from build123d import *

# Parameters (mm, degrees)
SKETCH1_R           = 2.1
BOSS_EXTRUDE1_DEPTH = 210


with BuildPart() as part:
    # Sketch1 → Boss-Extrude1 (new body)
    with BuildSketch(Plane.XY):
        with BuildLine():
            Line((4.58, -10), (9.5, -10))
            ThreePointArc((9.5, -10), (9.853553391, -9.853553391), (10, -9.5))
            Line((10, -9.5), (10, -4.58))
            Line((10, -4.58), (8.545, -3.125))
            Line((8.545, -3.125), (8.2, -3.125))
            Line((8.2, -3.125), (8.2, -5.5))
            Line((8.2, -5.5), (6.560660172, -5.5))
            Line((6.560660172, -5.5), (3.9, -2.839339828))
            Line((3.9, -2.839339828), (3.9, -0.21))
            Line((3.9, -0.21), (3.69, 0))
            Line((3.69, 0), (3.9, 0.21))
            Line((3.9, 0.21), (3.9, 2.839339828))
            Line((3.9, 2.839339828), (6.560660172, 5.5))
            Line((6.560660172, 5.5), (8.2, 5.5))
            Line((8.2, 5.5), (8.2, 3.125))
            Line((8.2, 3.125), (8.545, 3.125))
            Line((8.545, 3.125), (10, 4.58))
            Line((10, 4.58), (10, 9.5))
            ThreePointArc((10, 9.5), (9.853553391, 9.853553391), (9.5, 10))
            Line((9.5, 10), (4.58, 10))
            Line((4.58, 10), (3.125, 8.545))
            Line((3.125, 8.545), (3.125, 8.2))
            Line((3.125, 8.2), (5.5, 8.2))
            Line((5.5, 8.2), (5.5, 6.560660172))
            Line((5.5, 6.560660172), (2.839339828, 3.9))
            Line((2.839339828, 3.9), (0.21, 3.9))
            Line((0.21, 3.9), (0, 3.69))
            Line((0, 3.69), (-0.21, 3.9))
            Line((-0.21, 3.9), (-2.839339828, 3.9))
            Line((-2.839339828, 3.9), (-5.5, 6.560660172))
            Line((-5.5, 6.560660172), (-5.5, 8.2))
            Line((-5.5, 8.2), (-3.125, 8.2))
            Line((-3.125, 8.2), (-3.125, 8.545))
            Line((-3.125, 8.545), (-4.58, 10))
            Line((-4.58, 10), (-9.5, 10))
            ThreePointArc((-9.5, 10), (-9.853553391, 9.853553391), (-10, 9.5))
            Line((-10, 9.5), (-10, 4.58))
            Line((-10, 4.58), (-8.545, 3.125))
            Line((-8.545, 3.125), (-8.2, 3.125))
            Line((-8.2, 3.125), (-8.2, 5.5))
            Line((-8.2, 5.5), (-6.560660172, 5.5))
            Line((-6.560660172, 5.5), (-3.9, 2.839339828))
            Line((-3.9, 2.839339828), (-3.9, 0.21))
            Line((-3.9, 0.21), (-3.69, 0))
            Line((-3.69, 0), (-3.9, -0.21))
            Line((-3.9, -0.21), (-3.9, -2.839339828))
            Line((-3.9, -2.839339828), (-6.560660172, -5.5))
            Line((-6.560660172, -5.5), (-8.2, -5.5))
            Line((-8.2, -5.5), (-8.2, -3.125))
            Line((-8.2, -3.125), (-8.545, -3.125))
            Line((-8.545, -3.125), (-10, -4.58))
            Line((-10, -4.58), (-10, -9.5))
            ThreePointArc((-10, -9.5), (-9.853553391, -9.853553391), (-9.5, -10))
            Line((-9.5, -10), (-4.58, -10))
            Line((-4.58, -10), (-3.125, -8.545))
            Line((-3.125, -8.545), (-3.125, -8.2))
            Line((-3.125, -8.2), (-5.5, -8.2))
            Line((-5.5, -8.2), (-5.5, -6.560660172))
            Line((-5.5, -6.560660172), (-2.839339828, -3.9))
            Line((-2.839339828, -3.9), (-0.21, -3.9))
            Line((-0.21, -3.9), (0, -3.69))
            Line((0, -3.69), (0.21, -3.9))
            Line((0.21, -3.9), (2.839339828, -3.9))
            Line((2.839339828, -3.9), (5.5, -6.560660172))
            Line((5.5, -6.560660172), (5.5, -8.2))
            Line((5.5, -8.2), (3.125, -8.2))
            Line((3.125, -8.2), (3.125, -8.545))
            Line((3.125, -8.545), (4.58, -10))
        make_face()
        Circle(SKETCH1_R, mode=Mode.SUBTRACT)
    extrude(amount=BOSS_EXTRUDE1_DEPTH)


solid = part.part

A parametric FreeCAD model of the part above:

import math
import FreeCAD as App
import Part
import Sketcher
from FreeCAD import Vector
Q = App.Units.Quantity

doc = App.newDocument("Part")
params = doc.addObject("Spreadsheet::Sheet", "Params")
for row, (alias, value) in enumerate([
    ("sketch1_diameter", "4.2 mm"),
    ("sketch1_radius", "0.5 mm"),
    ("sketch1_width", "4.92 mm"),
    ("pad1_length", "210 mm"),
], start=1):
    params.set(f"A{row}", alias)
    params.set(f"B{row}", "=" + value)
    params.setAlias(f"B{row}", alias)

body = doc.addObject("PartDesign::Body", "Body")

# Sketch on XY plane
sketch1 = doc.addObject("Sketcher::SketchObject", "Sketch")
body.addObject(sketch1)
sketch1.AttachmentSupport = (doc.XY_Plane, [""])
sketch1.MapMode = "FlatFace"
sketch1.addGeometry(Part.LineSegment(Vector(4.58, -10, 0), Vector(9.5, -10, 0)), False)
sketch1.addGeometry(Part.ArcOfCircle(Part.Circle(Vector(9.5, -9.5, 0), Vector(0, 0, 1), 0.5), math.radians(-90), math.radians(0)), False)
sketch1.addGeometry(Part.LineSegment(Vector(10, -9.5, 0), Vector(10, -4.58, 0)), False)
sketch1.addGeometry(Part.LineSegment(Vector(10, -4.58, 0), Vector(8.54, -3.12, 0)), False)
sketch1.addGeometry(Part.LineSegment(Vector(8.54, -3.12, 0), Vector(8.2, -3.12, 0)), False)
sketch1.addGeometry(Part.LineSegment(Vector(8.2, -3.12, 0), Vector(8.2, -5.5, 0)), False)
sketch1.addGeometry(Part.LineSegment(Vector(8.2, -5.5, 0), Vector(6.56, -5.5, 0)), False)
sketch1.addGeometry(Part.LineSegment(Vector(6.56, -5.5, 0), Vector(3.9, -2.84, 0)), False)
sketch1.addGeometry(Part.LineSegment(Vector(3.9, -2.84, 0), Vector(3.9, -0.21, 0)), False)
sketch1.addGeometry(Part.LineSegment(Vector(3.9, -0.21, 0), Vector(3.69, 0, 0)), False)
sketch1.addGeometry(Part.LineSegment(Vector(3.69, 0, 0), Vector(3.9, 0.21, 0)), False)
sketch1.addGeometry(Part.LineSegment(Vector(3.9, 0.21, 0), Vector(3.9, 2.84, 0)), False)
sketch1.addGeometry(Part.LineSegment(Vector(3.9, 2.84, 0), Vector(6.56, 5.5, 0)), False)
sketch1.addGeometry(Part.LineSegment(Vector(6.56, 5.5, 0), Vector(8.2, 5.5, 0)), False)
sketch1.addGeometry(Part.LineSegment(Vector(8.2, 5.5, 0), Vector(8.2, 3.12, 0)), False)
sketch1.addGeometry(Part.LineSegment(Vector(8.2, 3.12, 0), Vector(8.54, 3.12, 0)), False)
sketch1.addGeometry(Part.LineSegment(Vector(8.54, 3.12, 0), Vector(10, 4.58, 0)), False)
sketch1.addGeometry(Part.LineSegment(Vector(10, 4.58, 0), Vector(10, 9.5, 0)), False)
sketch1.addGeometry(Part.ArcOfCircle(Part.Circle(Vector(9.5, 9.5, 0), Vector(0, 0, 1), 0.5), math.radians(0), math.radians(90)), False)
sketch1.addGeometry(Part.LineSegment(Vector(9.5, 10, 0), Vector(4.58, 10, 0)), False)
sketch1.addGeometry(Part.LineSegment(Vector(4.58, 10, 0), Vector(3.12, 8.54, 0)), False)
sketch1.addGeometry(Part.LineSegment(Vector(3.12, 8.54, 0), Vector(3.12, 8.2, 0)), False)
sketch1.addGeometry(Part.LineSegment(Vector(3.12, 8.2, 0), Vector(5.5, 8.2, 0)), False)
sketch1.addGeometry(Part.LineSegment(Vector(5.5, 8.2, 0), Vector(5.5, 6.56, 0)), False)
sketch1.addGeometry(Part.LineSegment(Vector(5.5, 6.56, 0), Vector(2.84, 3.9, 0)), False)
sketch1.addGeometry(Part.LineSegment(Vector(2.84, 3.9, 0), Vector(0.21, 3.9, 0)), False)
sketch1.addGeometry(Part.LineSegment(Vector(0.21, 3.9, 0), Vector(0, 3.69, 0)), False)
sketch1.addGeometry(Part.LineSegment(Vector(0, 3.69, 0), Vector(-0.21, 3.9, 0)), False)
sketch1.addGeometry(Part.LineSegment(Vector(-0.21, 3.9, 0), Vector(-2.84, 3.9, 0)), False)
sketch1.addGeometry(Part.LineSegment(Vector(-2.84, 3.9, 0), Vector(-5.5, 6.56, 0)), False)
sketch1.addGeometry(Part.LineSegment(Vector(-5.5, 6.56, 0), Vector(-5.5, 8.2, 0)), False)
sketch1.addGeometry(Part.LineSegment(Vector(-5.5, 8.2, 0), Vector(-3.12, 8.2, 0)), False)
sketch1.addGeometry(Part.LineSegment(Vector(-3.12, 8.2, 0), Vector(-3.12, 8.54, 0)), False)
sketch1.addGeometry(Part.LineSegment(Vector(-3.12, 8.54, 0), Vector(-4.58, 10, 0)), False)
sketch1.addGeometry(Part.LineSegment(Vector(-4.58, 10, 0), Vector(-9.5, 10, 0)), False)
sketch1.addGeometry(Part.ArcOfCircle(Part.Circle(Vector(-9.5, 9.5, 0), Vector(0, 0, 1), 0.5), math.radians(90), math.radians(180)), False)
sketch1.addGeometry(Part.LineSegment(Vector(-10, 9.5, 0), Vector(-10, 4.58, 0)), False)
sketch1.addGeometry(Part.LineSegment(Vector(-10, 4.58, 0), Vector(-8.54, 3.12, 0)), False)
sketch1.addGeometry(Part.LineSegment(Vector(-8.54, 3.12, 0), Vector(-8.2, 3.12, 0)), False)
sketch1.addGeometry(Part.LineSegment(Vector(-8.2, 3.12, 0), Vector(-8.2, 5.5, 0)), False)
sketch1.addGeometry(Part.LineSegment(Vector(-8.2, 5.5, 0), Vector(-6.56, 5.5, 0)), False)
sketch1.addGeometry(Part.LineSegment(Vector(-6.56, 5.5, 0), Vector(-3.9, 2.84, 0)), False)
sketch1.addGeometry(Part.LineSegment(Vector(-3.9, 2.84, 0), Vector(-3.9, 0.21, 0)), False)
sketch1.addGeometry(Part.LineSegment(Vector(-3.9, 0.21, 0), Vector(-3.69, 0, 0)), False)
sketch1.addGeometry(Part.LineSegment(Vector(-3.69, 0, 0), Vector(-3.9, -0.21, 0)), False)
sketch1.addGeometry(Part.LineSegment(Vector(-3.9, -0.21, 0), Vector(-3.9, -2.84, 0)), False)
sketch1.addGeometry(Part.LineSegment(Vector(-3.9, -2.84, 0), Vector(-6.56, -5.5, 0)), False)
sketch1.addGeometry(Part.LineSegment(Vector(-6.56, -5.5, 0), Vector(-8.2, -5.5, 0)), False)
sketch1.addGeometry(Part.LineSegment(Vector(-8.2, -5.5, 0), Vector(-8.2, -3.12, 0)), False)
sketch1.addGeometry(Part.LineSegment(Vector(-8.2, -3.12, 0), Vector(-8.54, -3.12, 0)), False)
sketch1.addGeometry(Part.LineSegment(Vector(-8.54, -3.12, 0), Vector(-10, -4.58, 0)), False)
sketch1.addGeometry(Part.LineSegment(Vector(-10, -4.58, 0), Vector(-10, -9.5, 0)), False)
sketch1.addGeometry(Part.ArcOfCircle(Part.Circle(Vector(-9.5, -9.5, 0), Vector(0, 0, 1), 0.5), math.radians(180), math.radians(270)), False)
sketch1.addGeometry(Part.LineSegment(Vector(-9.5, -10, 0), Vector(-4.58, -10, 0)), False)
sketch1.addGeometry(Part.LineSegment(Vector(-4.58, -10, 0), Vector(-3.12, -8.54, 0)), False)
sketch1.addGeometry(Part.LineSegment(Vector(-3.12, -8.54, 0), Vector(-3.12, -8.2, 0)), False)
sketch1.addGeometry(Part.LineSegment(Vector(-3.12, -8.2, 0), Vector(-5.5, -8.2, 0)), False)
sketch1.addGeometry(Part.LineSegment(Vector(-5.5, -8.2, 0), Vector(-5.5, -6.56, 0)), False)
sketch1.addGeometry(Part.LineSegment(Vector(-5.5, -6.56, 0), Vector(-2.84, -3.9, 0)), False)
sketch1.addGeometry(Part.LineSegment(Vector(-2.84, -3.9, 0), Vector(-0.21, -3.9, 0)), False)
sketch1.addGeometry(Part.LineSegment(Vector(-0.21, -3.9, 0), Vector(0, -3.69, 0)), False)
sketch1.addGeometry(Part.LineSegment(Vector(0, -3.69, 0), Vector(0.21, -3.9, 0)), False)
sketch1.addGeometry(Part.LineSegment(Vector(0.21, -3.9, 0), Vector(2.84, -3.9, 0)), False)
sketch1.addGeometry(Part.LineSegment(Vector(2.84, -3.9, 0), Vector(5.5, -6.56, 0)), False)
sketch1.addGeometry(Part.LineSegment(Vector(5.5, -6.56, 0), Vector(5.5, -8.2, 0)), False)
sketch1.addGeometry(Part.LineSegment(Vector(5.5, -8.2, 0), Vector(3.12, -8.2, 0)), False)
sketch1.addGeometry(Part.LineSegment(Vector(3.12, -8.2, 0), Vector(3.12, -8.54, 0)), False)
sketch1.addGeometry(Part.LineSegment(Vector(3.12, -8.54, 0), Vector(4.58, -10, 0)), False)
sketch1.addGeometry(Part.Circle(Vector(0, 0, 0), Vector(0, 0, 1), 2.1), False)
sketch1.addConstraint(Sketcher.Constraint("Tangent", 0, 2, 1, 1))
sketch1.addConstraint(Sketcher.Constraint("Tangent", 1, 2, 2, 1))
sketch1.addConstraint(Sketcher.Constraint("Coincident", 2, 2, 3, 1))
sketch1.addConstraint(Sketcher.Constraint("Coincident", 3, 2, 4, 1))
sketch1.addConstraint(Sketcher.Constraint("Coincident", 4, 2, 5, 1))
sketch1.addConstraint(Sketcher.Constraint("Coincident", 5, 2, 6, 1))
sketch1.addConstraint(Sketcher.Constraint("Coincident", 6, 2, 7, 1))
sketch1.addConstraint(Sketcher.Constraint("Coincident", 7, 2, 8, 1))
sketch1.addConstraint(Sketcher.Constraint("Coincident", 8, 2, 9, 1))
sketch1.addConstraint(Sketcher.Constraint("Coincident", 9, 2, 10, 1))
sketch1.addConstraint(Sketcher.Constraint("Coincident", 10, 2, 11, 1))
sketch1.addConstraint(Sketcher.Constraint("Coincident", 11, 2, 12, 1))
sketch1.addConstraint(Sketcher.Constraint("Coincident", 12, 2, 13, 1))
sketch1.addConstraint(Sketcher.Constraint("Coincident", 13, 2, 14, 1))
sketch1.addConstraint(Sketcher.Constraint("Coincident", 14, 2, 15, 1))
sketch1.addConstraint(Sketcher.Constraint("Coincident", 15, 2, 16, 1))
sketch1.addConstraint(Sketcher.Constraint("Coincident", 16, 2, 17, 1))
sketch1.addConstraint(Sketcher.Constraint("Tangent", 17, 2, 18, 1))
sketch1.addConstraint(Sketcher.Constraint("Tangent", 18, 2, 19, 1))
sketch1.addConstraint(Sketcher.Constraint("Coincident", 19, 2, 20, 1))
sketch1.addConstraint(Sketcher.Constraint("Coincident", 20, 2, 21, 1))
sketch1.addConstraint(Sketcher.Constraint("Coincident", 21, 2, 22, 1))
sketch1.addConstraint(Sketcher.Constraint("Coincident", 22, 2, 23, 1))
sketch1.addConstraint(Sketcher.Constraint("Coincident", 23, 2, 24, 1))
sketch1.addConstraint(Sketcher.Constraint("Coincident", 24, 2, 25, 1))
sketch1.addConstraint(Sketcher.Constraint("Coincident", 25, 2, 26, 1))
sketch1.addConstraint(Sketcher.Constraint("Coincident", 26, 2, 27, 1))
sketch1.addConstraint(Sketcher.Constraint("Coincident", 27, 2, 28, 1))
sketch1.addConstraint(Sketcher.Constraint("Coincident", 28, 2, 29, 1))
sketch1.addConstraint(Sketcher.Constraint("Coincident", 29, 2, 30, 1))
sketch1.addConstraint(Sketcher.Constraint("Coincident", 30, 2, 31, 1))
sketch1.addConstraint(Sketcher.Constraint("Coincident", 31, 2, 32, 1))
sketch1.addConstraint(Sketcher.Constraint("Coincident", 32, 2, 33, 1))
sketch1.addConstraint(Sketcher.Constraint("Coincident", 33, 2, 34, 1))
sketch1.addConstraint(Sketcher.Constraint("Tangent", 34, 2, 35, 1))
sketch1.addConstraint(Sketcher.Constraint("Tangent", 35, 2, 36, 1))
sketch1.addConstraint(Sketcher.Constraint("Coincident", 36, 2, 37, 1))
sketch1.addConstraint(Sketcher.Constraint("Coincident", 37, 2, 38, 1))
sketch1.addConstraint(Sketcher.Constraint("Coincident", 38, 2, 39, 1))
sketch1.addConstraint(Sketcher.Constraint("Coincident", 39, 2, 40, 1))
sketch1.addConstraint(Sketcher.Constraint("Coincident", 40, 2, 41, 1))
sketch1.addConstraint(Sketcher.Constraint("Coincident", 41, 2, 42, 1))
sketch1.addConstraint(Sketcher.Constraint("Coincident", 42, 2, 43, 1))
sketch1.addConstraint(Sketcher.Constraint("Coincident", 43, 2, 44, 1))
sketch1.addConstraint(Sketcher.Constraint("Coincident", 44, 2, 45, 1))
sketch1.addConstraint(Sketcher.Constraint("Coincident", 45, 2, 46, 1))
sketch1.addConstraint(Sketcher.Constraint("Coincident", 46, 2, 47, 1))
sketch1.addConstraint(Sketcher.Constraint("Coincident", 47, 2, 48, 1))
sketch1.addConstraint(Sketcher.Constraint("Coincident", 48, 2, 49, 1))
sketch1.addConstraint(Sketcher.Constraint("Coincident", 49, 2, 50, 1))
sketch1.addConstraint(Sketcher.Constraint("Coincident", 50, 2, 51, 1))
sketch1.addConstraint(Sketcher.Constraint("Tangent", 51, 2, 52, 1))
sketch1.addConstraint(Sketcher.Constraint("Tangent", 52, 2, 53, 1))
sketch1.addConstraint(Sketcher.Constraint("Coincident", 53, 2, 54, 1))
sketch1.addConstraint(Sketcher.Constraint("Coincident", 54, 2, 55, 1))
sketch1.addConstraint(Sketcher.Constraint("Coincident", 55, 2, 56, 1))
sketch1.addConstraint(Sketcher.Constraint("Coincident", 56, 2, 57, 1))
sketch1.addConstraint(Sketcher.Constraint("Coincident", 57, 2, 58, 1))
sketch1.addConstraint(Sketcher.Constraint("Coincident", 58, 2, 59, 1))
sketch1.addConstraint(Sketcher.Constraint("Coincident", 59, 2, 60, 1))
sketch1.addConstraint(Sketcher.Constraint("Coincident", 60, 2, 61, 1))
sketch1.addConstraint(Sketcher.Constraint("Coincident", 61, 2, 62, 1))
sketch1.addConstraint(Sketcher.Constraint("Coincident", 62, 2, 63, 1))
sketch1.addConstraint(Sketcher.Constraint("Coincident", 63, 2, 64, 1))
sketch1.addConstraint(Sketcher.Constraint("Coincident", 64, 2, 65, 1))
sketch1.addConstraint(Sketcher.Constraint("Coincident", 65, 2, 66, 1))
sketch1.addConstraint(Sketcher.Constraint("Coincident", 66, 2, 67, 1))
sketch1.addConstraint(Sketcher.Constraint("Coincident", 67, 2, 0, 1))
sketch1.addConstraint(Sketcher.Constraint("Horizontal", 0))
sketch1.addConstraint(Sketcher.Constraint("Vertical", 2))
sketch1.addConstraint(Sketcher.Constraint("Horizontal", 4))
sketch1.addConstraint(Sketcher.Constraint("Vertical", 5))
sketch1.addConstraint(Sketcher.Constraint("Horizontal", 6))
sketch1.addConstraint(Sketcher.Constraint("Vertical", 8))
sketch1.addConstraint(Sketcher.Constraint("Vertical", 11))
sketch1.addConstraint(Sketcher.Constraint("Horizontal", 13))
sketch1.addConstraint(Sketcher.Constraint("Vertical", 14))
sketch1.addConstraint(Sketcher.Constraint("Horizontal", 15))
sketch1.addConstraint(Sketcher.Constraint("Vertical", 17))
sketch1.addConstraint(Sketcher.Constraint("Horizontal", 19))
sketch1.addConstraint(Sketcher.Constraint("Vertical", 21))
sketch1.addConstraint(Sketcher.Constraint("Horizontal", 22))
sketch1.addConstraint(Sketcher.Constraint("Vertical", 23))
sketch1.addConstraint(Sketcher.Constraint("Horizontal", 25))
sketch1.addConstraint(Sketcher.Constraint("Horizontal", 28))
sketch1.addConstraint(Sketcher.Constraint("Vertical", 30))
sketch1.addConstraint(Sketcher.Constraint("Horizontal", 31))
sketch1.addConstraint(Sketcher.Constraint("Vertical", 32))
sketch1.addConstraint(Sketcher.Constraint("Horizontal", 34))
sketch1.addConstraint(Sketcher.Constraint("Vertical", 36))
sketch1.addConstraint(Sketcher.Constraint("Horizontal", 38))
sketch1.addConstraint(Sketcher.Constraint("Vertical", 39))
sketch1.addConstraint(Sketcher.Constraint("Horizontal", 40))
sketch1.addConstraint(Sketcher.Constraint("Vertical", 42))
sketch1.addConstraint(Sketcher.Constraint("Vertical", 45))
sketch1.addConstraint(Sketcher.Constraint("Horizontal", 47))
sketch1.addConstraint(Sketcher.Constraint("Vertical", 48))
sketch1.addConstraint(Sketcher.Constraint("Horizontal", 49))
sketch1.addConstraint(Sketcher.Constraint("Vertical", 51))
sketch1.addConstraint(Sketcher.Constraint("Horizontal", 53))
sketch1.addConstraint(Sketcher.Constraint("Vertical", 55))
sketch1.addConstraint(Sketcher.Constraint("Horizontal", 56))
sketch1.addConstraint(Sketcher.Constraint("Vertical", 57))
sketch1.addConstraint(Sketcher.Constraint("Horizontal", 59))
sketch1.addConstraint(Sketcher.Constraint("Horizontal", 62))
sketch1.addConstraint(Sketcher.Constraint("Vertical", 64))
sketch1.addConstraint(Sketcher.Constraint("Horizontal", 65))
sketch1.addConstraint(Sketcher.Constraint("Vertical", 66))
sketch1.addConstraint(Sketcher.Constraint("Coincident", 68, 3, -1, 1))
sketch1.addConstraint(Sketcher.Constraint("Equal", 1, 18))
sketch1.addConstraint(Sketcher.Constraint("Equal", 18, 35))
sketch1.addConstraint(Sketcher.Constraint("Equal", 35, 52))
sketch1.addConstraint(Sketcher.Constraint("Symmetric", 1, 3, 35, 3, -1, 1))
sketch1.addConstraint(Sketcher.Constraint("Symmetric", 18, 3, 52, 3, -1, 1))
sketch1.addConstraint(Sketcher.Constraint("Symmetric", 3, 2, 37, 2, -1, 1))
sketch1.addConstraint(Sketcher.Constraint("Symmetric", 5, 2, 39, 2, -1, 1))
sketch1.addConstraint(Sketcher.Constraint("Symmetric", 7, 2, 41, 2, -1, 1))
sketch1.addConstraint(Sketcher.Constraint("Symmetric", 9, 2, 43, 2, -1, 1))
sketch1.addConstraint(Sketcher.Constraint("Symmetric", 10, 2, 44, 2, -1, 1))
sketch1.addConstraint(Sketcher.Constraint("Symmetric", 12, 2, 46, 2, -1, 1))
sketch1.addConstraint(Sketcher.Constraint("Symmetric", 14, 2, 48, 2, -1, 1))
sketch1.addConstraint(Sketcher.Constraint("Symmetric", 20, 2, 54, 2, -1, 1))
sketch1.addConstraint(Sketcher.Constraint("Symmetric", 22, 2, 56, 2, -1, 1))
sketch1.addConstraint(Sketcher.Constraint("Symmetric", 24, 2, 58, 2, -1, 1))
sketch1.addConstraint(Sketcher.Constraint("Symmetric", 26, 2, 60, 2, -1, 1))
sketch1.addConstraint(Sketcher.Constraint("Symmetric", 27, 2, 61, 2, -1, 1))
sketch1.addConstraint(Sketcher.Constraint("Symmetric", 29, 2, 63, 2, -1, 1))
sketch1.addConstraint(Sketcher.Constraint("Symmetric", 31, 2, 65, 2, -1, 1))
sketch1.addConstraint(Sketcher.Constraint("Symmetric", 18, 3, 35, 3, -2))
sketch1.addConstraint(Sketcher.Constraint("Symmetric", 25, 2, 27, 2, -2))
sketch1.addConstraint(Sketcher.Constraint("Symmetric", 23, 2, 29, 2, -2))
sketch1.addConstraint(Sketcher.Constraint("Symmetric", 21, 2, 31, 2, -2))
sketch1.addConstraint(Sketcher.Constraint("Symmetric", 15, 2, 37, 2, -2))
sketch1.addConstraint(Sketcher.Constraint("Symmetric", 13, 2, 39, 2, -2))
sketch1.addConstraint(Sketcher.Constraint("Symmetric", 11, 2, 41, 2, -2))
sketch1.addConstraint(Sketcher.Constraint("PointOnObject", 9, 2, -1))
sketch1.addConstraint(Sketcher.Constraint("PointOnObject", 26, 2, -2))
sketch1.addConstraint(Sketcher.Constraint("Parallel", 3, 7))
sketch1.addConstraint(Sketcher.Constraint("Parallel", 7, 9))
sketch1.addConstraint(Sketcher.Constraint("Perpendicular", 9, 10))
sketch1.addConstraint(Sketcher.Constraint("Parallel", 10, 12))
sketch1.addConstraint(Sketcher.Constraint("Parallel", 12, 16))
sketch1.addConstraint(Sketcher.Constraint("Parallel", 16, 20))
sketch1.addConstraint(Sketcher.Constraint("Parallel", 20, 24))
sketch1.addConstraint(Sketcher.Constraint("Parallel", 24, 26))
sketch1.addConstraint(Sketcher.Constraint("Perpendicular", 26, 27))
sketch1.addConstraint(Sketcher.Constraint("Parallel", 27, 29))
sketch1.addConstraint(Sketcher.Constraint("Parallel", 29, 33))
sketch1.addConstraint(Sketcher.Constraint("Parallel", 33, 37))
sketch1.addConstraint(Sketcher.Constraint("Parallel", 37, 41))
sketch1.addConstraint(Sketcher.Constraint("Parallel", 41, 43))
sketch1.addConstraint(Sketcher.Constraint("Parallel", 44, 46))
sketch1.addConstraint(Sketcher.Constraint("Parallel", 46, 50))
sketch1.addConstraint(Sketcher.Constraint("Parallel", 50, 54))
sketch1.addConstraint(Sketcher.Constraint("Parallel", 54, 58))
sketch1.addConstraint(Sketcher.Constraint("Parallel", 58, 60))
sketch1.addConstraint(Sketcher.Constraint("Parallel", 61, 63))
sketch1.addConstraint(Sketcher.Constraint("Parallel", 63, 67))
sketch1.addConstraint(Sketcher.Constraint("Horizontal", 20, 2, 32, 2))
sketch1.addConstraint(Sketcher.Constraint("Horizontal", 2, 2, 50, 2))
sketch1.addConstraint(Sketcher.Constraint("Horizontal", 54, 2, 66, 2))
sketch1.addConstraint(Sketcher.Constraint("Equal", 53, 2))
sketch1.addConstraint(Sketcher.Constraint("Equal", 65, 5))
sketch1.addConstraint(Sketcher.Constraint("Equal", 62, 8))
sketch1.addConstraint(Sketcher.Constraint("Equal", 49, 21))
sketch1.addConstraint(Sketcher.Constraint("Equal", 47, 23))
sketch1.addConstraint(Sketcher.Constraint("Equal", 16, 20))
sketch1.addConstraint(Sketcher.Constraint("Equal", 12, 24))
sketch1.addConstraint(Sketcher.Constraint("Equal", 10, 26))
sketch1.addConstraint(Sketcher.Constraint("Diameter", 68, Q("4.2 mm")))
sketch1.addConstraint(Sketcher.Constraint("Radius", 1, Q("0.5 mm")))
sketch1.addConstraint(Sketcher.Constraint("DistanceY", 0, 2, -1, 1, Q("10 mm")))
sketch1.addConstraint(Sketcher.Constraint("DistanceX", 0, 1, 0, 2, Q("4.92 mm")))
sketch1.addConstraint(Sketcher.Constraint("DistanceX", -1, 1, 4, 2, Q("8.2 mm")))
sketch1.addConstraint(Sketcher.Constraint("DistanceY", 5, 2, -1, 1, Q("5.5 mm")))
sketch1.addConstraint(Sketcher.Constraint("DistanceX", -1, 1, 7, 2, Q("3.9 mm")))
sketch1.addConstraint(Sketcher.Constraint("DistanceX", 4, 2, 4, 1, Q("0.345 mm")))
sketch1.addConstraint(Sketcher.Constraint("DistanceY", 8, 2, -1, 1, Q("0.21 mm")))
sketch1.addConstraint(Sketcher.Constraint("DistanceX", 6, 2, 6, 1, Q("1.63934 mm")))
sketch1.setExpression("Constraints[169]", "Params.sketch1_diameter")
sketch1.setExpression("Constraints[170]", "Params.sketch1_radius")
sketch1.setExpression("Constraints[172]", "Params.sketch1_width")
pad1 = doc.addObject("PartDesign::Pad", "Pad")
body.addObject(pad1)
pad1.Profile = sketch1
pad1.setExpression("Length", "Params.pad1_length")

doc.recompute()
